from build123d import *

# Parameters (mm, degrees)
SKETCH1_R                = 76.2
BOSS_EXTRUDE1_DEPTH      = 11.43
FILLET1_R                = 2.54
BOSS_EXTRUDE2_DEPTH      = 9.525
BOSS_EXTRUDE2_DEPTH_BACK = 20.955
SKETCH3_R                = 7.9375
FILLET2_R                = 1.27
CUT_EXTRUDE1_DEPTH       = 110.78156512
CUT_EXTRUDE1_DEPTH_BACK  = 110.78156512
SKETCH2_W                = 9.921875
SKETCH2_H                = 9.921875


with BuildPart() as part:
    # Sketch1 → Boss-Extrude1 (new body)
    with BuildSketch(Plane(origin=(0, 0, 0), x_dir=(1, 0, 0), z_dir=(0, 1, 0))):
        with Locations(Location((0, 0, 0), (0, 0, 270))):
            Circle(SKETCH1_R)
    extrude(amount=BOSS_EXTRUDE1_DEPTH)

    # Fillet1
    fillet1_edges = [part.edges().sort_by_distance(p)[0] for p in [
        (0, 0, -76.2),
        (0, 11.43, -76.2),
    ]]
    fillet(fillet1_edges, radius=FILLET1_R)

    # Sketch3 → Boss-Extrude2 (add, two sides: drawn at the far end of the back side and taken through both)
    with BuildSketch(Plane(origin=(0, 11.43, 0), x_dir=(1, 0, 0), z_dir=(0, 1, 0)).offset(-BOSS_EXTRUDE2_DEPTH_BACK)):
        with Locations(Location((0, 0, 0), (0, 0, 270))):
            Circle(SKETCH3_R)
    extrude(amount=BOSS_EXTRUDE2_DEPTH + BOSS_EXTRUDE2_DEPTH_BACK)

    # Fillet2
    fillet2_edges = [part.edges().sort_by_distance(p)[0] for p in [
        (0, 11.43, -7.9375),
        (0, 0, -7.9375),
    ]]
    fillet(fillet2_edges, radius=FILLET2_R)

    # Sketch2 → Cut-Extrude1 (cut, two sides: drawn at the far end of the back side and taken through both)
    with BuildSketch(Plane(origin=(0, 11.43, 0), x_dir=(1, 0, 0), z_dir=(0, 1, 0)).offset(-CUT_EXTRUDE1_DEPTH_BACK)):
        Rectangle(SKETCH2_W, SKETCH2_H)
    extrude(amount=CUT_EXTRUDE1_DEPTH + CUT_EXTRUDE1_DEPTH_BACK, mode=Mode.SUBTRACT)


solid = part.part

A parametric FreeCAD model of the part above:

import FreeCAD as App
import Part
import Sketcher
from FreeCAD import Vector
Q = App.Units.Quantity


def edges_at(feature, points):
    """Names of the edges that pass closest to the given points."""
    edges = feature.Shape.Edges
    near = lambda p: min(range(len(edges)), key=lambda i: edges[i].distToShape(Part.Vertex(*p))[0])
    return sorted({f"Edge{near(p) + 1}" for p in points})


def add_polygon(sketch, points):
    """Adds a closed chain of lines whose ends are joined by coincident constraints."""
    first, n = sketch.GeometryCount, len(points)
    for a, b in zip(points, points[1:] + points[:1]):
        sketch.addGeometry(Part.LineSegment(App.Vector(*a, 0), App.Vector(*b, 0)), False)
    for i in range(n):
        sketch.addConstraint(Sketcher.Constraint("Coincident", first + i, 2, first + (i + 1) % n, 1))

doc = App.newDocument("Part")
body = doc.addObject("PartDesign::Body", "Body")

# Sketch on XZ plane
sketch1 = doc.addObject("Sketcher::SketchObject", "Sketch")
body.addObject(sketch1)
sketch1.AttachmentSupport = (doc.XZ_Plane, [""])
sketch1.MapMode = "FlatFace"
sketch1.addGeometry(Part.Circle(Vector(0, 0, 0), Vector(0, 0, 1), 76.2), False)
sketch1.addConstraint(Sketcher.Constraint("Coincident", 0, 3, -1, 1))
sketch1.addConstraint(Sketcher.Constraint("Diameter", 0, Q("6 in")))
pad1 = doc.addObject("PartDesign::Pad", "Pad")
body.addObject(pad1)
pad1.Profile = sketch1
pad1.Length = Q("0.45 in")
pad1.Reversed = True
doc.recompute()

fillet = doc.addObject("PartDesign::Fillet", "Fillet")
body.addObject(fillet)
fillet.Base = (pad1, edges_at(pad1, [(0, 0, -76.2), (0, 11.43, -76.2)]))
fillet.Radius = Q("0.1 in")

# Sketch on XZ plane
sketch2 = doc.addObject("Sketcher::SketchObject", "Sketch001")
body.addObject(sketch2)
sketch2.AttachmentSupport = (doc.XZ_Plane, [""])
sketch2.MapMode = "FlatFace"
sketch2.AttachmentOffset = App.Placement(Vector(0, 0, -0.45 * 25.4), App.Rotation())
sketch2.addGeometry(Part.Circle(Vector(0, 0, 0), Vector(0, 0, 1), 7.9375), False)
sketch2.addConstraint(Sketcher.Constraint("Coincident", 0, 3, -1, 1))
sketch2.addConstraint(Sketcher.Constraint("Diameter", 0, Q("0.625 in")))
pad2 = doc.addObject("PartDesign::Pad", "Pad001")
body.addObject(pad2)
pad2.Profile = sketch2
pad2.Type = "TwoLengths"
pad2.Length = Q("0.375 in")
pad2.Length2 = Q("0.825 in")
pad2.Reversed = True
doc.recompute()

fillet2 = doc.addObject("PartDesign::Fillet", "Fillet001")
body.addObject(fillet2)
fillet2.Base = (pad2, edges_at(pad2, [(0, 11.43, -7.938), (0, 0, -7.938)]))
fillet2.Radius = Q("0.05 in")

# Sketch on XZ plane
sketch3 = doc.addObject("Sketcher::SketchObject", "Sketch002")
body.addObject(sketch3)
sketch3.AttachmentSupport = (doc.XZ_Plane, [""])
sketch3.MapMode = "FlatFace"
sketch3.AttachmentOffset = App.Placement(Vector(0, 0, -0.45 * 25.4), App.Rotation())
add_polygon(sketch3, [(-4.960938, -4.960938), (-4.960938, 4.960938), (4.960938, 4.960938), (4.960938, -4.960938)])  # lines 0-3
sketch3.addConstraint(Sketcher.Constraint("Vertical", 0))
sketch3.addConstraint(Sketcher.Constraint("Horizontal", 1))
sketch3.addConstraint(Sketcher.Constraint("Vertical", 2))
sketch3.addConstraint(Sketcher.Constraint("Horizontal", 3))
sketch3.addConstraint(Sketcher.Constraint("Symmetric", 0, 2, 2, 2, -1, 1))
sketch3.addConstraint(Sketcher.Constraint("Equal", 3, 0))
sketch3.addConstraint(Sketcher.Constraint("DistanceX", 1, 1, 1, 2, Q("0.390625 in")))
pocket1 = doc.addObject("PartDesign::Pocket", "Pocket")
body.addObject(pocket1)
pocket1.Profile = sketch3
pocket1.Type = "ThroughAll"
pocket1.Midplane = True

doc.recompute()
